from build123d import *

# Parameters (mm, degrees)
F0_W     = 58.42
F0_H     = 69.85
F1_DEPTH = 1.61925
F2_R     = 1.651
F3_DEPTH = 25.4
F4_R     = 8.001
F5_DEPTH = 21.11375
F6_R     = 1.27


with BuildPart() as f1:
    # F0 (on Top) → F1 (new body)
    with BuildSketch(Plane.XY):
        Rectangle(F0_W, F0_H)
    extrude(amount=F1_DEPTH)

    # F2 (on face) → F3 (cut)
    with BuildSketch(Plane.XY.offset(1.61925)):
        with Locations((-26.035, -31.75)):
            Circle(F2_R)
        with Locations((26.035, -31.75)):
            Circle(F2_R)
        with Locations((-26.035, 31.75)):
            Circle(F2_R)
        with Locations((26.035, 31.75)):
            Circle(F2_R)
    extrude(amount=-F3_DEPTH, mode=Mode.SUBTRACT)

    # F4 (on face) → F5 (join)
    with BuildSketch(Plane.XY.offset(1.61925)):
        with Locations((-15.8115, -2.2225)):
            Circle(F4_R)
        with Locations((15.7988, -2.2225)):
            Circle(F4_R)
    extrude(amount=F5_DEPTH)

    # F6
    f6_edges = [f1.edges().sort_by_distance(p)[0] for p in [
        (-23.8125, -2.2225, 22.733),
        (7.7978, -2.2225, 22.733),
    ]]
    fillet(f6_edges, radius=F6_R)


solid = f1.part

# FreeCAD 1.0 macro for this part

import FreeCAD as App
import Part
import Sketcher

V = App.Vector
Q = App.Units.Quantity


def edges_at(feature, points):
    """Names of the edges that pass closest to the given points."""
    edges = feature.Shape.Edges
    near = lambda p: min(range(len(edges)), key=lambda i: edges[i].distToShape(Part.Vertex(*p))[0])
    return sorted({f"Edge{near(p) + 1}" for p in points})

doc = App.newDocument("Part")
body = doc.addObject("PartDesign::Body", "Body")

# Sketch on XY plane
sketch1 = doc.addObject("Sketcher::SketchObject", "Sketch")
body.addObject(sketch1)
sketch1.AttachmentSupport = (doc.XY_Plane, [""])
sketch1.MapMode = "FlatFace"
sketch1.addGeometry(Part.LineSegment(V(-29, 35, 0), V(-29, -35, 0)), False)
sketch1.addGeometry(Part.LineSegment(V(-29, -35, 0), V(29, -35, 0)), False)
sketch1.addGeometry(Part.LineSegment(V(29, -35, 0), V(29, 35, 0)), False)
sketch1.addGeometry(Part.LineSegment(V(29, 35, 0), V(-29, 35, 0)), False)
sketch1.addConstraint(Sketcher.Constraint("Coincident", 0, 2, 1, 1))
sketch1.addConstraint(Sketcher.Constraint("Coincident", 1, 2, 2, 1))
sketch1.addConstraint(Sketcher.Constraint("Coincident", 2, 2, 3, 1))
sketch1.addConstraint(Sketcher.Constraint("Coincident", 3, 2, 0, 1))
sketch1.addConstraint(Sketcher.Constraint("Vertical", 0))
sketch1.addConstraint(Sketcher.Constraint("Horizontal", 1))
sketch1.addConstraint(Sketcher.Constraint("Vertical", 2))
sketch1.addConstraint(Sketcher.Constraint("Horizontal", 3))
sketch1.addConstraint(Sketcher.Constraint("Symmetric", 0, 2, 2, 2, -1, 1))
sketch1.addConstraint(Sketcher.Constraint("DistanceX", 1, 1, 1, 2, Q("2.3 in")))
sketch1.addConstraint(Sketcher.Constraint("DistanceY", 0, 2, 0, 1, Q("2.75 in")))
pad1 = doc.addObject("PartDesign::Pad", "Pad")
body.addObject(pad1)
pad1.Profile = sketch1
pad1.Length = 1.61925

# Sketch on XY plane
sketch2 = doc.addObject("Sketcher::SketchObject", "Sketch001")
body.addObject(sketch2)
sketch2.AttachmentSupport = (doc.XY_Plane, [""])
sketch2.MapMode = "FlatFace"
sketch2.AttachmentOffset = App.Placement(V(0, 0, 1.61925), App.Rotation())
sketch2.addGeometry(Part.Circle(V(-26, -31.8, 0), V(0, 0, 1), 1.7), False)
sketch2.addGeometry(Part.Circle(V(26, -31.8, 0), V(0, 0, 1), 1.7), False)
sketch2.addGeometry(Part.Circle(V(-26, 31.8, 0), V(0, 0, 1), 1.7), False)
sketch2.addGeometry(Part.Circle(V(26, 31.8, 0), V(0, 0, 1), 1.7), False)
sketch2.addConstraint(Sketcher.Constraint("Equal", 0, 1))
sketch2.addConstraint(Sketcher.Constraint("Equal", 1, 2))
sketch2.addConstraint(Sketcher.Constraint("Equal", 2, 3))
sketch2.addConstraint(Sketcher.Constraint("Symmetric", 1, 3, 2, 3, -1, 1))
sketch2.addConstraint(Sketcher.Constraint("Symmetric", 0, 3, 3, 3, -1, 1))
sketch2.addConstraint(Sketcher.Constraint("Symmetric", 0, 3, 1, 3, -2))
sketch2.addConstraint(Sketcher.Constraint("Diameter", 0, Q("0.13 in")))
sketch2.addConstraint(Sketcher.Constraint("DistanceY", 0, 3, 2, 3, Q("2.5 in")))
sketch2.addConstraint(Sketcher.Constraint("DistanceX", 0, 3, 1, 3, Q("2.05 in")))
pocket1 = doc.addObject("PartDesign::Pocket", "Pocket")
body.addObject(pocket1)
pocket1.Profile = sketch2
pocket1.Length = Q("1 in")

# Sketch on XY plane
sketch3 = doc.addObject("Sketcher::SketchObject", "Sketch002")
body.addObject(sketch3)
sketch3.AttachmentSupport = (doc.XY_Plane, [""])
sketch3.MapMode = "FlatFace"
sketch3.AttachmentOffset = App.Placement(V(0, 0, 1.61925), App.Rotation())
sketch3.addGeometry(Part.Circle(V(-16, -2, 0), V(0, 0, 1), 8), False)
sketch3.addGeometry(Part.Circle(V(16, -2, 0), V(0, 0, 1), 8), False)
sketch3.addConstraint(Sketcher.Constraint("Equal", 0, 1))
sketch3.addConstraint(Sketcher.Constraint("Horizontal", 0, 3, 1, 3))
sketch3.addConstraint(Sketcher.Constraint("Diameter", 0, Q("0.63 in")))
sketch3.addConstraint(Sketcher.Constraint("DistanceX", -1, 1, 1, 3, Q("0.622 in")))
sketch3.addConstraint(Sketcher.Constraint("DistanceX", 0, 3, -1, 1, Q("0.6225 in")))
sketch3.addConstraint(Sketcher.Constraint("DistanceY", 0, 3, -1, 1, Q("0.0875 in")))
pad2 = doc.addObject("PartDesign::Pad", "Pad001")
body.addObject(pad2)
pad2.Profile = sketch3
pad2.Length = 21.11375
doc.recompute()

fillet = doc.addObject("PartDesign::Fillet", "Fillet")
body.addObject(fillet)
fillet.Base = (pad2, edges_at(pad2, [(-23.812, -2.223, 22.733), (7.798, -2.223, 22.733)]))
fillet.Radius = Q("0.05 in")

doc.recompute()
